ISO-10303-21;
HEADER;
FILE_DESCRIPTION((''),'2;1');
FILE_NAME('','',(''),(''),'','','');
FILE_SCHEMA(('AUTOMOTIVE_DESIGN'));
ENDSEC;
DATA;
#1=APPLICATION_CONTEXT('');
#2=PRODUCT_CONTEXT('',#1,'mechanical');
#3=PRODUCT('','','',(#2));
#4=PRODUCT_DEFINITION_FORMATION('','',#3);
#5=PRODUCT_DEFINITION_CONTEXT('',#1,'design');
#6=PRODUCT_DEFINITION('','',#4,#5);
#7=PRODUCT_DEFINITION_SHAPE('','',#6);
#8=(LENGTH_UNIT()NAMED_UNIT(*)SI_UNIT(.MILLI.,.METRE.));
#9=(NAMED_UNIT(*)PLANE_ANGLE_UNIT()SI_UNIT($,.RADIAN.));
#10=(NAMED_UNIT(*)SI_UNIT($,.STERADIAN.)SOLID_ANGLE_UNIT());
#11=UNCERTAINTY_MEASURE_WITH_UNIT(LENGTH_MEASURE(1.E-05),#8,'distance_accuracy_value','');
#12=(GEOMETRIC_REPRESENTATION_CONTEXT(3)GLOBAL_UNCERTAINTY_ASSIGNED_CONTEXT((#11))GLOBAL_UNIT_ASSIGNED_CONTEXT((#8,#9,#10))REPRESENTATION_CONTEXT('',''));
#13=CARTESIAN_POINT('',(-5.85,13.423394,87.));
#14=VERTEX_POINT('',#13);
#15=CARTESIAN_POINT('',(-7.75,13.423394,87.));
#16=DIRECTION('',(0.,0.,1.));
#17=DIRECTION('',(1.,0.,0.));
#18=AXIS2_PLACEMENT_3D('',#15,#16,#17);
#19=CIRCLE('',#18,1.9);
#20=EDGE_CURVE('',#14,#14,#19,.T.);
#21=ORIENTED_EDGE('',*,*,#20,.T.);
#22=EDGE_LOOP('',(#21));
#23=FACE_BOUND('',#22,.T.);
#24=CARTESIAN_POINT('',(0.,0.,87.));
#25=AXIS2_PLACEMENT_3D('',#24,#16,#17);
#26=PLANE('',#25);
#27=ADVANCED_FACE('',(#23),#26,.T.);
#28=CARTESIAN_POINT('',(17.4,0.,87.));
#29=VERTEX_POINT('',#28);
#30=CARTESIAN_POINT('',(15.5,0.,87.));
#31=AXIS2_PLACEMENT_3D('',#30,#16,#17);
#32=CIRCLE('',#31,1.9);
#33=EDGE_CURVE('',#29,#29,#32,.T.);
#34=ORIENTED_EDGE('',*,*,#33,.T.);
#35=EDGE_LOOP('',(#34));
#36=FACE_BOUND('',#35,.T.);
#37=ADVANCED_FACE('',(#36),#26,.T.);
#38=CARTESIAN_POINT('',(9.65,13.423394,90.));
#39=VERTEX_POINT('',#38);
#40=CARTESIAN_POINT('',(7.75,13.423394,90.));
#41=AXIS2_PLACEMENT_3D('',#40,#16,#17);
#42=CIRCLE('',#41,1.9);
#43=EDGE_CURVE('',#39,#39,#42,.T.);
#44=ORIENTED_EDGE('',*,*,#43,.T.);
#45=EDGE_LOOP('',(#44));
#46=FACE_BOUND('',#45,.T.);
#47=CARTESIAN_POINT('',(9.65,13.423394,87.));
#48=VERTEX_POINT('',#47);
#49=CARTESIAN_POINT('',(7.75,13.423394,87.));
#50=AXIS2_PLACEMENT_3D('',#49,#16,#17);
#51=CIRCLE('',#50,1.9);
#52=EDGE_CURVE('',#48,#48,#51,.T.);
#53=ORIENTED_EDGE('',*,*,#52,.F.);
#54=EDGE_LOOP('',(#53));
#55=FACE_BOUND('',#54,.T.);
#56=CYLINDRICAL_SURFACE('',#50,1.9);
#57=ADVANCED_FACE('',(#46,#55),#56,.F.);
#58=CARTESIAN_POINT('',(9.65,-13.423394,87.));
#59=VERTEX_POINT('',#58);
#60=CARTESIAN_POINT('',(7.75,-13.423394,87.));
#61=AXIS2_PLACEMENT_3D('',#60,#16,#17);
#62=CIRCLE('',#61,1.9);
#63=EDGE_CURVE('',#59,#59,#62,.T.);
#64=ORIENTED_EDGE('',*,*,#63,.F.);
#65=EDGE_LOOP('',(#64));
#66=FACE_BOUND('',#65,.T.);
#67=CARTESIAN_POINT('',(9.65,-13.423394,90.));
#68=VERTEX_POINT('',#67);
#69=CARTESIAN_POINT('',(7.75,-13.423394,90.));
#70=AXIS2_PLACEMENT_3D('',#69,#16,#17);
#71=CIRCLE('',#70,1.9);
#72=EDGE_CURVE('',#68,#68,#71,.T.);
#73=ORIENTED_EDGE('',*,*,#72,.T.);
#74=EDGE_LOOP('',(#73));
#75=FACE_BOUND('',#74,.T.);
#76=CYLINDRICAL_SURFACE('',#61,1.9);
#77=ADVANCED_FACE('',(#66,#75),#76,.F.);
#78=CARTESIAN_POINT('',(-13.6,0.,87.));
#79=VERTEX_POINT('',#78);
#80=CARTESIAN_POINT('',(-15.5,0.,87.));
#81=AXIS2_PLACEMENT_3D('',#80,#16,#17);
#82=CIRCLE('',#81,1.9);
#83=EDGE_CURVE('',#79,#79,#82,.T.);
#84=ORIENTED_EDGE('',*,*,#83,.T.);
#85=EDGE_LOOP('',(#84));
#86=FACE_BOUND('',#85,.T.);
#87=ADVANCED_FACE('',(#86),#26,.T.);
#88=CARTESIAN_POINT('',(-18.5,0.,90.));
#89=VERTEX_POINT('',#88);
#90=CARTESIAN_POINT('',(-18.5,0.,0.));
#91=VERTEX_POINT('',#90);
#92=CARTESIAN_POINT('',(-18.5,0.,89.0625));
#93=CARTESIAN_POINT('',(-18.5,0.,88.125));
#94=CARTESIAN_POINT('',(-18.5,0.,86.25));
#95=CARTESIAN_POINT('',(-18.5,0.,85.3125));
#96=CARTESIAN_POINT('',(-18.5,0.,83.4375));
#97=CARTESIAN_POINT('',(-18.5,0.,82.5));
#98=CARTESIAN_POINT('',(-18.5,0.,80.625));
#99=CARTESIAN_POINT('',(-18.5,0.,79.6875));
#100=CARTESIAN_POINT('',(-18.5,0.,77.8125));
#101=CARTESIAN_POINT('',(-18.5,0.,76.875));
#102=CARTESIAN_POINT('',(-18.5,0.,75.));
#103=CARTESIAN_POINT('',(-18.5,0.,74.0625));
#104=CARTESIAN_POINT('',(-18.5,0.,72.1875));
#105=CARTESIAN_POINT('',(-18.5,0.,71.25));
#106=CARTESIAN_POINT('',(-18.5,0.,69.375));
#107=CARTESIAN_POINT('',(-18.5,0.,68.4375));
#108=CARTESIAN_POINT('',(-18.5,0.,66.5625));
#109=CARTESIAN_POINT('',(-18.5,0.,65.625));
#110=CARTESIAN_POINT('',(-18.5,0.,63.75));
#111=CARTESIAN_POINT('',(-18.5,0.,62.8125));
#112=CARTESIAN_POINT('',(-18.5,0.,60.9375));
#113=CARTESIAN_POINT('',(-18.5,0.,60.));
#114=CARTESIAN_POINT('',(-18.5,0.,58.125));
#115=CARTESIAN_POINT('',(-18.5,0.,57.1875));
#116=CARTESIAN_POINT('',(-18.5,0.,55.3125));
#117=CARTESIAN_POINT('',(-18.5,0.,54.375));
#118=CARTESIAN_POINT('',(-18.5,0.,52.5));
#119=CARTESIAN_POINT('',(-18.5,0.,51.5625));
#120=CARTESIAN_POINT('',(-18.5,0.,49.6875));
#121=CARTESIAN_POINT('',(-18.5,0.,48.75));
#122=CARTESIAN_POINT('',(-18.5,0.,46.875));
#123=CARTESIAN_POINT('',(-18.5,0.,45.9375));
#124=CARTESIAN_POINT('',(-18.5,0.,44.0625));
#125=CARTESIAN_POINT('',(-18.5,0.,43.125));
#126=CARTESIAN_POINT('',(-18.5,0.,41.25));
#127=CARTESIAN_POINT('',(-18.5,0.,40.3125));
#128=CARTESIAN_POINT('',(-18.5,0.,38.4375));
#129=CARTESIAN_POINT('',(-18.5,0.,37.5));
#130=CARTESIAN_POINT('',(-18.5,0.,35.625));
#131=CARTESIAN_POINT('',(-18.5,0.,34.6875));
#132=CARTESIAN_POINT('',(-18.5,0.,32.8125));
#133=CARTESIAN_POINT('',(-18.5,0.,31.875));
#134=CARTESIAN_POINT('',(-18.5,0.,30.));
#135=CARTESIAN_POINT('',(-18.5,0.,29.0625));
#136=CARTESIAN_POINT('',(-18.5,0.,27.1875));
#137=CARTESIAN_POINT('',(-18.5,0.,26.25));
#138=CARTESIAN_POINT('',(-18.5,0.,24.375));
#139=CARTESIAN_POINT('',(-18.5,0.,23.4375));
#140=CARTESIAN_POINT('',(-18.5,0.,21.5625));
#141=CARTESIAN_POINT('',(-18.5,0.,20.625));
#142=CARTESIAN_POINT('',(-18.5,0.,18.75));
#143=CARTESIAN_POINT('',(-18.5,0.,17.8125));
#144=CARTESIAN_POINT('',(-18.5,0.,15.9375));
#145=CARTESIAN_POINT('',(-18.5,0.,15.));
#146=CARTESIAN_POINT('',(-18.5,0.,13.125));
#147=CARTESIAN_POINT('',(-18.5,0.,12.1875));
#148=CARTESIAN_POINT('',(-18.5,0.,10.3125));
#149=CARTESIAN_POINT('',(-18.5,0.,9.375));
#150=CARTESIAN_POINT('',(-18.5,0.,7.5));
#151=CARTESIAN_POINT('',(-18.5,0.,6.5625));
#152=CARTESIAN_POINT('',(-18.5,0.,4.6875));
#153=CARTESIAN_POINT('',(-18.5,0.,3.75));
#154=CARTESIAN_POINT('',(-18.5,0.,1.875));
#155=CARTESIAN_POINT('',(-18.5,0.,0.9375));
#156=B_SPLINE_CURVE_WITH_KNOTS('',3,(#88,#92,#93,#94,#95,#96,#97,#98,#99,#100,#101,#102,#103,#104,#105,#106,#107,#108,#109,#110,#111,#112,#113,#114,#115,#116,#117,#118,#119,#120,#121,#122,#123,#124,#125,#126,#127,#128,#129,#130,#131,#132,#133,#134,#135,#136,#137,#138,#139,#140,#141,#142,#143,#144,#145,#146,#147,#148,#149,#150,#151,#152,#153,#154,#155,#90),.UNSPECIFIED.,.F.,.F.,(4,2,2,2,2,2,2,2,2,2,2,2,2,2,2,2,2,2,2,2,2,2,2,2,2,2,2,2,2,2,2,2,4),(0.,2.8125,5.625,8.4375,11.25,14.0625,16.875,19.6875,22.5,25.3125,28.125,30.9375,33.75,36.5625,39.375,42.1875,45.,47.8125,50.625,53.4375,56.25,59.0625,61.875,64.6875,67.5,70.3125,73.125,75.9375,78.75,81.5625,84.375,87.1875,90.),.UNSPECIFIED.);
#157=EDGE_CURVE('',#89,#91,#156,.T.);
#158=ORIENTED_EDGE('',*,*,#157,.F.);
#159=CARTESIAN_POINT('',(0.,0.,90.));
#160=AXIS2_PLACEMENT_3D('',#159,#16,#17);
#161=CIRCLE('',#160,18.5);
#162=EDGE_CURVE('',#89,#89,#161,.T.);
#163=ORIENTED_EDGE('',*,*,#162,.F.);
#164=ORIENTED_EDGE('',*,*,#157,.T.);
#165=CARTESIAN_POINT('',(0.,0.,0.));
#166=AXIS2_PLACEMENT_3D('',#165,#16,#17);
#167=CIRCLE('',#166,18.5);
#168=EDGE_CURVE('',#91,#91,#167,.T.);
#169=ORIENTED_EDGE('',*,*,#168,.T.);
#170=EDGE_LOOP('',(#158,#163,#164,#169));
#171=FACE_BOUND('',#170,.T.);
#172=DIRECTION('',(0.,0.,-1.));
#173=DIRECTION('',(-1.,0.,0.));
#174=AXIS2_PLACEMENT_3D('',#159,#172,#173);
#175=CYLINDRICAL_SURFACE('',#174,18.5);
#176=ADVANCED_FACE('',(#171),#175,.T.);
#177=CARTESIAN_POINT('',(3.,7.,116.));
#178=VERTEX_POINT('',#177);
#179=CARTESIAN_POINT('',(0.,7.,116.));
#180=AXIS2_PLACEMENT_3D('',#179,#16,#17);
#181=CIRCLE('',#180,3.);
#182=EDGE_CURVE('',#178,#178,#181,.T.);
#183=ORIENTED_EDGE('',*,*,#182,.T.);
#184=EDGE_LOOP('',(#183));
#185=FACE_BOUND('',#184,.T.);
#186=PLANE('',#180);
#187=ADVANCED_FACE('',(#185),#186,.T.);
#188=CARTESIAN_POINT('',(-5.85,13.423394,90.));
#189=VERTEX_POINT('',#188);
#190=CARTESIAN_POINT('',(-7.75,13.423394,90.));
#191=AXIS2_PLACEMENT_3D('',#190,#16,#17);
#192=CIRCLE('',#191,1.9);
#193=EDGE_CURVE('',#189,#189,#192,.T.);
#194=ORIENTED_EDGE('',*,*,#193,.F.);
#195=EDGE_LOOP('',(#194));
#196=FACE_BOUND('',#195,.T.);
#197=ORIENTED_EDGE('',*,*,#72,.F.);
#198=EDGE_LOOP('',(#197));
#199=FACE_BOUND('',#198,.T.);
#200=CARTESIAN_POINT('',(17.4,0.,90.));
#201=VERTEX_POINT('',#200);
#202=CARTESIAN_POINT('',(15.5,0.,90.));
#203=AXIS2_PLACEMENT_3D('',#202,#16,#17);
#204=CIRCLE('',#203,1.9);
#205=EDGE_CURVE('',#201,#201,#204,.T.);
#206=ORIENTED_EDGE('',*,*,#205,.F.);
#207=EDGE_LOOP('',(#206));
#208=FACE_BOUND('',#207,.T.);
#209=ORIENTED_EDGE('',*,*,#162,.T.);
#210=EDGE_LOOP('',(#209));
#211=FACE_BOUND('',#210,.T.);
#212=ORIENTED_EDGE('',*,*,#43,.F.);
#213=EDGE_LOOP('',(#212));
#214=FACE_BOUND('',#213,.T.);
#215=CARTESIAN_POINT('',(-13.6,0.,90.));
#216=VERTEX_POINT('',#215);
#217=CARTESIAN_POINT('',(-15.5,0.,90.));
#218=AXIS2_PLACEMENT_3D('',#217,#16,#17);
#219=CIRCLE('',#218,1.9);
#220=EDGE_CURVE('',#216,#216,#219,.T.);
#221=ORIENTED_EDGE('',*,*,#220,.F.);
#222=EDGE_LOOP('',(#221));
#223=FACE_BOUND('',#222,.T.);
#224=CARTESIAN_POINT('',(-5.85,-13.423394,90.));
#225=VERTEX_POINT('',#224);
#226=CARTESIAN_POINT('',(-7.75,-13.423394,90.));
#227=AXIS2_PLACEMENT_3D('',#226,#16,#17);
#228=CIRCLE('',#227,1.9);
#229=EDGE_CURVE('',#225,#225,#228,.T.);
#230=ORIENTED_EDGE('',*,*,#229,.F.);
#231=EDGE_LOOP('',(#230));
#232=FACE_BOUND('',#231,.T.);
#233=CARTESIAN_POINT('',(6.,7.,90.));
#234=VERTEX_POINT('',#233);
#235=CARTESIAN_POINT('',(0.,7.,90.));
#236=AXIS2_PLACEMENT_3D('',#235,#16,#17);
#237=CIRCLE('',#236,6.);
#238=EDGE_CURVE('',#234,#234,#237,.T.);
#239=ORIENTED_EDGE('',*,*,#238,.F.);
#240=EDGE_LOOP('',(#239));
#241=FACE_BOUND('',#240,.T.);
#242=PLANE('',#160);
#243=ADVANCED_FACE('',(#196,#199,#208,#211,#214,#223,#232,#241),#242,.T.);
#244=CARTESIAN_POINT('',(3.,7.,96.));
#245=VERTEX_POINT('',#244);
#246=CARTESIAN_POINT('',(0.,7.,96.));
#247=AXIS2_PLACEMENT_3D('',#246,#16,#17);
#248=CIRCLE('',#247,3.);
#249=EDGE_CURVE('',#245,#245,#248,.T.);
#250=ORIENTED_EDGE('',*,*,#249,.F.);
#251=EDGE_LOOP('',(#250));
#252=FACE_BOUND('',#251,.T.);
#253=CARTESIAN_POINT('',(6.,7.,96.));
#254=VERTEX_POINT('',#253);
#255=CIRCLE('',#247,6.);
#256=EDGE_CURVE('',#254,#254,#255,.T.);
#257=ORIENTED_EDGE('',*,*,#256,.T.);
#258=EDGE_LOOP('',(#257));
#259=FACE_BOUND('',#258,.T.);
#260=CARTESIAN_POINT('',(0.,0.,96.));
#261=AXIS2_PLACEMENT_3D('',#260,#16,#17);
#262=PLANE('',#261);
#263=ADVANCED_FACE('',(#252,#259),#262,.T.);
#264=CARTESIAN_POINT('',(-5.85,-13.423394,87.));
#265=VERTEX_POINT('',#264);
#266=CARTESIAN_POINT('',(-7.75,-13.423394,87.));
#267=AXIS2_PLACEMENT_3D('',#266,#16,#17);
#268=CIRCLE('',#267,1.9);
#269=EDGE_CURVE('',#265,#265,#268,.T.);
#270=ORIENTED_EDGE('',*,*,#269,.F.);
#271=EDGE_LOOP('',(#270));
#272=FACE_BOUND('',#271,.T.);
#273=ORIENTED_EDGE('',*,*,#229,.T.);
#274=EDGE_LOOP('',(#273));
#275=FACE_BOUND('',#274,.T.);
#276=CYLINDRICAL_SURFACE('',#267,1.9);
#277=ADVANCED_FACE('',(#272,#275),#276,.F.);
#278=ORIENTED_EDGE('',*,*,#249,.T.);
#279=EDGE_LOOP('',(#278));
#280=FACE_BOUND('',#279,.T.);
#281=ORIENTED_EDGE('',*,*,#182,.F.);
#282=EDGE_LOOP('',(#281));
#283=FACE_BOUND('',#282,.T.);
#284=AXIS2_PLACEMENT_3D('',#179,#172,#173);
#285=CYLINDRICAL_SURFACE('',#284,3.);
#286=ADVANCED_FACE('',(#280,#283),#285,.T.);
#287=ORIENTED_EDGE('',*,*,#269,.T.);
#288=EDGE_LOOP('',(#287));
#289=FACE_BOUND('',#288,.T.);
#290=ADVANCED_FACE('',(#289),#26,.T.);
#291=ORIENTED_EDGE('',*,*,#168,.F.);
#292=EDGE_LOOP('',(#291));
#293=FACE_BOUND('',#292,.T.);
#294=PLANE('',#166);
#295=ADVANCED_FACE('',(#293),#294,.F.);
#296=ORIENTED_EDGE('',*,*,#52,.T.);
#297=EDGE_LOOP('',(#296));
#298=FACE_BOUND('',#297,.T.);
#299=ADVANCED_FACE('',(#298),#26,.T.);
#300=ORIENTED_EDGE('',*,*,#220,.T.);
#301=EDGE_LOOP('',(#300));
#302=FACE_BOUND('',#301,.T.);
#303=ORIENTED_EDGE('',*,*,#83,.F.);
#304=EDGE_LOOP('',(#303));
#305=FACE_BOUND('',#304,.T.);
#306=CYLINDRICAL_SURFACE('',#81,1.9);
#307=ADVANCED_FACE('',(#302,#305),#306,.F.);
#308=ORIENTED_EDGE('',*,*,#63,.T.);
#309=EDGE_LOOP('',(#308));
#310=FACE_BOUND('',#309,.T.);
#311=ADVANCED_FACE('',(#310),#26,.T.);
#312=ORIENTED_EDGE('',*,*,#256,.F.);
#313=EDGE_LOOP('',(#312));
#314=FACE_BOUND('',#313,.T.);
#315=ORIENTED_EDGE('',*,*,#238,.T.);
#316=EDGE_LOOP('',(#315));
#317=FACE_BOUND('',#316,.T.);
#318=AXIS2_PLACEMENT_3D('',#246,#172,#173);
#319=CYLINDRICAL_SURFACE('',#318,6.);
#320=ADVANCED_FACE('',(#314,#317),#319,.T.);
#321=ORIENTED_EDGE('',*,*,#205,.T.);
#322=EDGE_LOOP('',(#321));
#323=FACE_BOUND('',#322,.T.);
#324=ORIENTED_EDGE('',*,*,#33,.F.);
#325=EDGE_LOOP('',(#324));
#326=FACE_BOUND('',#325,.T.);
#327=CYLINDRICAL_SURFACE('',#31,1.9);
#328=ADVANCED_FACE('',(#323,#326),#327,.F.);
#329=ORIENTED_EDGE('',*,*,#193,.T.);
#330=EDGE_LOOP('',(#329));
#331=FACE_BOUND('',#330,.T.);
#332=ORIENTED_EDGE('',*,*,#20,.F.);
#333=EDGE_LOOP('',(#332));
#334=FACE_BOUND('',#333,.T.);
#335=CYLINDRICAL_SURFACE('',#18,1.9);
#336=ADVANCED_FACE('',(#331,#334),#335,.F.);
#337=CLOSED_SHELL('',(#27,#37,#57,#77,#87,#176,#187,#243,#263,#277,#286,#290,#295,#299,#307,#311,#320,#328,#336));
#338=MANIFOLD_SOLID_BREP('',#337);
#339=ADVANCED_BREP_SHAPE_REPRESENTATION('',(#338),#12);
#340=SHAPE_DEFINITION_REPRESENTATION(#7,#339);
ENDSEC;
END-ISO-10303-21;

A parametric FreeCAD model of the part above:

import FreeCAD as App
import Part
import Sketcher

doc = App.newDocument("Part")
body = doc.addObject("PartDesign::Body", "Body")

# Sketch on XY plane
sketch1 = body.newObject("Sketcher::SketchObject", "Sketch")
sketch1.AttachmentSupport = (doc.getObject("XY_Plane"), [""])
sketch1.MapMode = "FlatFace"
sketch1.addGeometry(Part.Circle(App.Vector(0, 0, 0), App.Vector(0, 0, 1), 18), False)
sketch1.addConstraint([
    Sketcher.Constraint("Coincident", 0, 3, -1, 1),
    Sketcher.Constraint("Diameter", 0, 37.0),
])
pad1 = body.newObject("PartDesign::Pad", "Pad")
pad1.Profile = sketch1
pad1.Length = 90

# Sketch on XY plane
sketch2 = body.newObject("Sketcher::SketchObject", "Sketch001")
sketch2.AttachmentSupport = (doc.getObject("XY_Plane"), [""])
sketch2.MapMode = "FlatFace"
sketch2.AttachmentOffset = App.Placement(App.Vector(0, 0, 90), App.Rotation())
sketch2.addGeometry([
    Part.Circle(App.Vector(15.5, 0, 0), App.Vector(0, 0, 1), 1.9),  # 0
    Part.Circle(App.Vector(7.8, -13.4, 0), App.Vector(0, 0, 1), 1.9),  # 1
    Part.Circle(App.Vector(-7.8, -13.4, 0), App.Vector(0, 0, 1), 1.9),  # 2
    Part.Circle(App.Vector(-15.5, 0, 0), App.Vector(0, 0, 1), 1.9),  # 3
    Part.Circle(App.Vector(-7.8, 13.4, 0), App.Vector(0, 0, 1), 1.9),  # 4
    Part.Circle(App.Vector(7.8, 13.4, 0), App.Vector(0, 0, 1), 1.9),  # 5
], False)
sketch2.addConstraint([
    Sketcher.Constraint("Equal", 0, 1),
    Sketcher.Constraint("Equal", 1, 2),
    Sketcher.Constraint("Equal", 2, 3),
    Sketcher.Constraint("Equal", 3, 4),
    Sketcher.Constraint("Equal", 4, 5),
    Sketcher.Constraint("Symmetric", 0, 3, 3, 3, -1, 1),
    Sketcher.Constraint("Symmetric", 1, 3, 4, 3, -1, 1),
    Sketcher.Constraint("Symmetric", 2, 3, 5, 3, -1, 1),
    Sketcher.Constraint("Symmetric", 1, 3, 2, 3, -2),
    Sketcher.Constraint("PointOnObject", 0, 3, -1),
    Sketcher.Constraint("Diameter", 0, 3.8),
    Sketcher.Constraint("DistanceX", 3, 3, 0, 3, 31.0),
    Sketcher.Constraint("DistanceX", 2, 3, 1, 3, 15.5),
    Sketcher.Constraint("DistanceY", 1, 3, -1, 1, 13.423394),
])
pocket1 = body.newObject("PartDesign::Pocket", "Pocket")
pocket1.Profile = sketch2
pocket1.Length = 3

# Sketch on XY plane
sketch3 = body.newObject("Sketcher::SketchObject", "Sketch002")
sketch3.AttachmentSupport = (doc.getObject("XY_Plane"), [""])
sketch3.MapMode = "FlatFace"
sketch3.AttachmentOffset = App.Placement(App.Vector(0, 0, 90), App.Rotation())
sketch3.addGeometry(Part.Circle(App.Vector(0, 7, 0), App.Vector(0, 0, 1), 6), False)
sketch3.addConstraint([
    Sketcher.Constraint("PointOnObject", 0, 3, -2),
    Sketcher.Constraint("Diameter", 0, 12.0),
    Sketcher.Constraint("DistanceY", -1, 1, 0, 3, 7.0),
])
pad2 = body.newObject("PartDesign::Pad", "Pad001")
pad2.Profile = sketch3
pad2.Length = 6

# Sketch on XY plane
sketch4 = body.newObject("Sketcher::SketchObject", "Sketch003")
sketch4.AttachmentSupport = (doc.getObject("XY_Plane"), [""])
sketch4.MapMode = "FlatFace"
sketch4.AttachmentOffset = App.Placement(App.Vector(0, 0, 96), App.Rotation())
sketch4.addGeometry(Part.Circle(App.Vector(0, 7, 0), App.Vector(0, 0, 1), 3), False)
sketch4.addConstraint([
    Sketcher.Constraint("PointOnObject", 0, 3, -2),
    Sketcher.Constraint("Diameter", 0, 6.0),
    Sketcher.Constraint("DistanceY", -1, 1, 0, 3, 7.0),
])
pad3 = body.newObject("PartDesign::Pad", "Pad002")
pad3.Profile = sketch4
pad3.Length = 20

doc.recompute()
